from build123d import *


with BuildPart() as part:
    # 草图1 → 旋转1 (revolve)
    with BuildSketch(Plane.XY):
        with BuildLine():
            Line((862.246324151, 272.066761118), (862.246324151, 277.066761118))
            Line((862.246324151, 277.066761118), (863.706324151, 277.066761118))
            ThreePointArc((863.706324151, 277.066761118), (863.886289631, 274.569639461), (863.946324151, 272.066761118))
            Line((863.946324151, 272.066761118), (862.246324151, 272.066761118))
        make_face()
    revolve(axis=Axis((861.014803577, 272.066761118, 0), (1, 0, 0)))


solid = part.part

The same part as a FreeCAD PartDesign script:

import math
import FreeCAD as App
import Part
import Sketcher

doc = App.newDocument("Part")
params = doc.addObject("Spreadsheet::Sheet", "Params")
for row, (alias, value) in enumerate([
    ("sketch1_height", "5 mm"),
    ("sketch1_width", "1.7 mm"),
    ("sketch1_width2", "1.46 mm"),
    ("revolution_angle", "360 deg"),
], start=1):
    params.set(f"A{row}", alias)
    params.set(f"B{row}", "=" + value)
    params.setAlias(f"B{row}", alias)

body = doc.addObject("PartDesign::Body", "Body")

sketch1 = body.newObject("Sketcher::SketchObject", "Sketch")
sketch1.AttachmentSupport = (doc.getObject("XY_Plane"), [""])
sketch1.MapMode = "FlatFace"
sketch1.addGeometry(Part.LineSegment(App.Vector(862.246324, 277.066761, 0), App.Vector(862.246324, 272.066761, 0)), False)
sketch1.addGeometry(Part.LineSegment(App.Vector(862.246324, 272.066761, 0), App.Vector(863.946324, 272.066761, 0)), False)
sketch1.addGeometry(Part.ArcOfCircle(Part.Circle(App.Vector(811.742991, 272.066761, 0), App.Vector(0, 0, 1), 52.203333), math.radians(0), math.radians(5.496176)), False)
sketch1.addGeometry(Part.LineSegment(App.Vector(863.706324, 277.066761, 0), App.Vector(862.246324, 277.066761, 0)), False)
sketch1.addGeometry(Part.LineSegment(App.Vector(811.742991, 272.066761, 0), App.Vector(863.946324, 272.066761, 0)), True)
sketch1.addConstraint(Sketcher.Constraint("Coincident", 0, 2, 1, 1))
sketch1.addConstraint(Sketcher.Constraint("Coincident", 1, 2, 2, 1))
sketch1.addConstraint(Sketcher.Constraint("Coincident", 2, 2, 3, 1))
sketch1.addConstraint(Sketcher.Constraint("Coincident", 3, 2, 0, 1))
sketch1.addConstraint(Sketcher.Constraint("Vertical", 0))
sketch1.addConstraint(Sketcher.Constraint("Horizontal", 1))
sketch1.addConstraint(Sketcher.Constraint("Horizontal", 3))
sketch1.addConstraint(Sketcher.Constraint("Horizontal", 4))
sketch1.addConstraint(Sketcher.Constraint("Coincident", 4, 1, 2, 3))
sketch1.addConstraint(Sketcher.Constraint("Coincident", 4, 2, 1, 2))
sketch1.addConstraint(Sketcher.Constraint("DistanceY", 0, 2, 0, 1, 5.0))
sketch1.addConstraint(Sketcher.Constraint("DistanceX", 1, 1, 1, 2, 1.7))
sketch1.addConstraint(Sketcher.Constraint("DistanceX", 3, 2, 3, 1, 1.46))
sketch1.addConstraint(Sketcher.Constraint("DistanceX", -1, 1, 2, 3, 811.742991))
sketch1.addConstraint(Sketcher.Constraint("DistanceY", -1, 1, 2, 3, 272.066761))
sketch1.setExpression("Constraints[10]", "Params.sketch1_height")
sketch1.setExpression("Constraints[11]", "Params.sketch1_width")
sketch1.setExpression("Constraints[12]", "Params.sketch1_width2")
revolution = body.newObject("PartDesign::Revolution", "Revolution")
revolution.Profile = sketch1
revolution.ReferenceAxis = (sketch1, ["Axis0"])
revolution.setExpression("Angle", "Params.revolution_angle")

doc.recompute()
